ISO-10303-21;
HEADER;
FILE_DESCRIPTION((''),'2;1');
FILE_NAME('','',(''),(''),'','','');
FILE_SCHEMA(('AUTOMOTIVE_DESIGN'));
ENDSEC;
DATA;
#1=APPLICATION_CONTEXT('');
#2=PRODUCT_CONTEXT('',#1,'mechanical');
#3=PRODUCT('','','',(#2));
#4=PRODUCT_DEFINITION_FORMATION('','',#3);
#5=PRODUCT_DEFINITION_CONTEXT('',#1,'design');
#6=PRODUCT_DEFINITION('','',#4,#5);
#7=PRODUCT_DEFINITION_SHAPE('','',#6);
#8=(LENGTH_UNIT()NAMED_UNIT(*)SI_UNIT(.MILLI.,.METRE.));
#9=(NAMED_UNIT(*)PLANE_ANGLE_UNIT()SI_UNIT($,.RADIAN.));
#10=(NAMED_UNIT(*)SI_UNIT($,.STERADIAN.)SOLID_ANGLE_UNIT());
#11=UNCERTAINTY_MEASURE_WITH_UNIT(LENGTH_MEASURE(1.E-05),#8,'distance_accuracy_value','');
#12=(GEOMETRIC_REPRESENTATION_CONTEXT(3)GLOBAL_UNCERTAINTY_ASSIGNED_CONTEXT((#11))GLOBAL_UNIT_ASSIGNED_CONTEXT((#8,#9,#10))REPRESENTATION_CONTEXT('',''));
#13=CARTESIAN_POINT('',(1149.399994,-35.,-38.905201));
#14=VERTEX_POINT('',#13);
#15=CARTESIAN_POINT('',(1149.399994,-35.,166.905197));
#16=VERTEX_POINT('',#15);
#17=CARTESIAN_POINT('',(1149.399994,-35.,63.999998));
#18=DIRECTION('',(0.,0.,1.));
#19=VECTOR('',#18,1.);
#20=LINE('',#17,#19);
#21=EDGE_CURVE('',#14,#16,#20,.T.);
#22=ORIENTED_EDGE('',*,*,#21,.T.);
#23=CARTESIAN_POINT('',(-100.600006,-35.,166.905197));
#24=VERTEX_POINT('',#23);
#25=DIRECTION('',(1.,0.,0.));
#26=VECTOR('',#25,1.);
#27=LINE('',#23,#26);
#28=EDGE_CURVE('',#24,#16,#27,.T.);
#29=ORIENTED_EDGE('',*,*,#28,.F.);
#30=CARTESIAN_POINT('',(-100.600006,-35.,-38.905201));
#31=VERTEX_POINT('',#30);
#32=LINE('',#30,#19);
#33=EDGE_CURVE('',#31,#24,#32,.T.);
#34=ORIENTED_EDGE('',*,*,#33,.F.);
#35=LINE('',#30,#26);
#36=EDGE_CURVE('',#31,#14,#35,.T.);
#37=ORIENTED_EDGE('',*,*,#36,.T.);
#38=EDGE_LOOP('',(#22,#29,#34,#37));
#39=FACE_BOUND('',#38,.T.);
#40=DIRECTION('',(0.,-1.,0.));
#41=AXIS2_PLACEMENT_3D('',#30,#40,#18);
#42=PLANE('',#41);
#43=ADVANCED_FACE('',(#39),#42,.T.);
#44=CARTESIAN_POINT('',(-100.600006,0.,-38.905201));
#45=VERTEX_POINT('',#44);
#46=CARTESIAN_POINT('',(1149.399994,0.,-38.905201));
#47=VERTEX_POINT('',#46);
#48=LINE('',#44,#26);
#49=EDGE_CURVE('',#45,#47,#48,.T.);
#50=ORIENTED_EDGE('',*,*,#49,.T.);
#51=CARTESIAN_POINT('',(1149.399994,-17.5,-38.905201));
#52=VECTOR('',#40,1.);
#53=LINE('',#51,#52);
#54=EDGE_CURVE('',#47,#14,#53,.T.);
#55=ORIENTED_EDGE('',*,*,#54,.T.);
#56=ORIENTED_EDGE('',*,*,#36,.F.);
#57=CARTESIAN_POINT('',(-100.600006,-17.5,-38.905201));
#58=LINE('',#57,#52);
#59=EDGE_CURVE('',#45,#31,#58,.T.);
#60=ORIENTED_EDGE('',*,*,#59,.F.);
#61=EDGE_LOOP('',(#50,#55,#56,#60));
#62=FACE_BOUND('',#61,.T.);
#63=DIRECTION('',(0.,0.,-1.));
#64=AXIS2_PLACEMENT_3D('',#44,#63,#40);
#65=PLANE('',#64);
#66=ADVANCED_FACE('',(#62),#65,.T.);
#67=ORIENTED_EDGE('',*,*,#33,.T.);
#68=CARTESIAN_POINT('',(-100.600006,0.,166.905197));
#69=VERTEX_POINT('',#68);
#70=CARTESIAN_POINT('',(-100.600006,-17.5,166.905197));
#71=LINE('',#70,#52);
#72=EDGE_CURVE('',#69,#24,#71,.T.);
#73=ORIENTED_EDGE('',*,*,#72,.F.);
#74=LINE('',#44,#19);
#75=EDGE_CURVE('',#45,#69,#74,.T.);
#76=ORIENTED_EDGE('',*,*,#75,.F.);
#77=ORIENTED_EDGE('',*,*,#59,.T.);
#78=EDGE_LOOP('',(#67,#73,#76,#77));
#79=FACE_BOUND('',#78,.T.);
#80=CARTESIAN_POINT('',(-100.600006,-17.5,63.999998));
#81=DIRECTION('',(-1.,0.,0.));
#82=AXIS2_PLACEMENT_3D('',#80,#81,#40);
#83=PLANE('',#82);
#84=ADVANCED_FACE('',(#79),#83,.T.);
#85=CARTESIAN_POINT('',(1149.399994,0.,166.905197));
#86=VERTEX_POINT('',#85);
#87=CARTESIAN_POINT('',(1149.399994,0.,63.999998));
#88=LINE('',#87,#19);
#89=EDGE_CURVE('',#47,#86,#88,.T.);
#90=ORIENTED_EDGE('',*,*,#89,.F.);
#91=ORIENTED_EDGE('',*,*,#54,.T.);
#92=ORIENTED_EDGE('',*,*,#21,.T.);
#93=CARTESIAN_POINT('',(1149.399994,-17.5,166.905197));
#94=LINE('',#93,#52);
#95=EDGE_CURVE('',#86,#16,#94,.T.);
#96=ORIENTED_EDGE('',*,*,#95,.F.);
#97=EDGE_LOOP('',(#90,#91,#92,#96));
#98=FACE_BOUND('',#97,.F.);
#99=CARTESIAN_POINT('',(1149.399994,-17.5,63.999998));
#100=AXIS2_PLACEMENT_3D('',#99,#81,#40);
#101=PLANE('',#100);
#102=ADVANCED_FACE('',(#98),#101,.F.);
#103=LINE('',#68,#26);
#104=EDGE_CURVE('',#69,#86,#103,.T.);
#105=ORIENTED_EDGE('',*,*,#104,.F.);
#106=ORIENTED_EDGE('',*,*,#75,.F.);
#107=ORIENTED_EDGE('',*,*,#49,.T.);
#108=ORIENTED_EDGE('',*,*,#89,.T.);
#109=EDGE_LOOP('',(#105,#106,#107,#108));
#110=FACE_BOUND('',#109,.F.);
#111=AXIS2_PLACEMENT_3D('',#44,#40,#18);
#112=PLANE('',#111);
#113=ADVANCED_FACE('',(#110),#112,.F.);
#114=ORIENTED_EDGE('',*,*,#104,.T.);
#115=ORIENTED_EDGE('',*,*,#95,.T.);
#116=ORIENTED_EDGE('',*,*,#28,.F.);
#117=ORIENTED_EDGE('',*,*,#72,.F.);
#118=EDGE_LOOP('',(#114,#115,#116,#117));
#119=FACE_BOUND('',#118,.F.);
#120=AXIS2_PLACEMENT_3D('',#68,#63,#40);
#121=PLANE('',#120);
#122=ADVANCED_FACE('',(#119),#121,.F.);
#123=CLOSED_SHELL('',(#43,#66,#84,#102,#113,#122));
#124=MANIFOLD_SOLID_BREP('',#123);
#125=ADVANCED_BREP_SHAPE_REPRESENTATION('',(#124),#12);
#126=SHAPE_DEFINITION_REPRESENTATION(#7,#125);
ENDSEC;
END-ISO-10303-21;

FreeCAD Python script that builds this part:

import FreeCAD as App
import Part
import Sketcher

doc = App.newDocument("Part")
body = doc.addObject("PartDesign::Body", "Body")

sketch1 = body.newObject("Sketcher::SketchObject", "Sketch")
sketch1.AttachmentSupport = (doc.getObject("XZ_Plane"), [""])
sketch1.MapMode = "FlatFace"
sketch1.addGeometry([
    Part.LineSegment(App.Vector(-101, -33, 0), App.Vector(-101, -39, 0)),
    Part.LineSegment(App.Vector(-101, -39, 0), App.Vector(99, -39, 0)),
    Part.LineSegment(App.Vector(99, -39, 0), App.Vector(99, -33, 0)),
    Part.LineSegment(App.Vector(99, -33, 0), App.Vector(-101, -33, 0)),
], False)
sketch1.addConstraint([
    Sketcher.Constraint("Coincident", 0, 2, 1, 1),
    Sketcher.Constraint("Coincident", 1, 2, 2, 1),
    Sketcher.Constraint("Coincident", 2, 2, 3, 1),
    Sketcher.Constraint("Coincident", 3, 2, 0, 1),
    Sketcher.Constraint("Vertical", 0),
    Sketcher.Constraint("Horizontal", 1),
    Sketcher.Constraint("Vertical", 2),
    Sketcher.Constraint("Horizontal", 3),
    Sketcher.Constraint("DistanceX", 1, 1, 1, 2, 200.0),
    Sketcher.Constraint("DistanceY", 0, 2, -1, 1, 38.9052),
    Sketcher.Constraint("DistanceY", 0, 2, 0, 1, 5.810397),
    Sketcher.Constraint("DistanceX", 0, 2, -1, 1, 100.600006),
])
pad1 = body.newObject("PartDesign::Pad", "Pad")
pad1.Profile = sketch1
pad1.Length = 35

sketch2 = body.newObject("Sketcher::SketchObject", "Sketch001")
sketch2.AttachmentSupport = (doc.getObject("XY_Plane"), [""])
sketch2.MapMode = "FlatFace"
sketch2.AttachmentOffset = App.Placement(App.Vector(0, 0, -33.094804), App.Rotation())
sketch2.addGeometry([
    Part.LineSegment(App.Vector(-101, 0, 0), App.Vector(-101, -35, 0)),
    Part.LineSegment(App.Vector(-101, -35, 0), App.Vector(99, -35, 0)),
    Part.LineSegment(App.Vector(99, -35, 0), App.Vector(99, 0, 0)),
    Part.LineSegment(App.Vector(99, 0, 0), App.Vector(-101, 0, 0)),
], False)
sketch2.addConstraint([
    Sketcher.Constraint("Coincident", 0, 2, 1, 1),
    Sketcher.Constraint("Coincident", 1, 2, 2, 1),
    Sketcher.Constraint("Coincident", 2, 2, 3, 1),
    Sketcher.Constraint("Coincident", 3, 2, 0, 1),
    Sketcher.Constraint("Vertical", 0),
    Sketcher.Constraint("Horizontal", 1),
    Sketcher.Constraint("Vertical", 2),
    Sketcher.Constraint("Horizontal", 3),
    Sketcher.Constraint("PointOnObject", 2, 2, -1),
    Sketcher.Constraint("DistanceX", 1, 1, 1, 2, 200.0),
    Sketcher.Constraint("DistanceY", 0, 2, 0, 1, 35.0),
    Sketcher.Constraint("DistanceX", 0, 2, -1, 1, 100.600006),
])
pad2 = body.newObject("PartDesign::Pad", "Pad001")
pad2.Profile = sketch2
pad2.Length = 200

sketch3 = body.newObject("Sketcher::SketchObject", "Sketch002")
sketch3.AttachmentSupport = (doc.getObject("YZ_Plane"), [""])
sketch3.MapMode = "FlatFace"
sketch3.AttachmentOffset = App.Placement(App.Vector(0, 0, -100.600006), App.Rotation())
sketch3.addGeometry([
    Part.LineSegment(App.Vector(0, 167, 0), App.Vector(0, -39, 0)),
    Part.LineSegment(App.Vector(0, -39, 0), App.Vector(-35, -39, 0)),
    Part.LineSegment(App.Vector(-35, -39, 0), App.Vector(-35, 167, 0)),
    Part.LineSegment(App.Vector(-35, 167, 0), App.Vector(0, 167, 0)),
], False)
sketch3.addConstraint([
    Sketcher.Constraint("Coincident", 0, 2, 1, 1),
    Sketcher.Constraint("Coincident", 1, 2, 2, 1),
    Sketcher.Constraint("Coincident", 2, 2, 3, 1),
    Sketcher.Constraint("Coincident", 3, 2, 0, 1),
    Sketcher.Constraint("Vertical", 0),
    Sketcher.Constraint("Horizontal", 1),
    Sketcher.Constraint("Vertical", 2),
    Sketcher.Constraint("Horizontal", 3),
    Sketcher.Constraint("PointOnObject", 0, 2, -2),
    Sketcher.Constraint("DistanceX", 1, 2, 1, 1, 35.0),
    Sketcher.Constraint("DistanceY", 0, 2, 0, 1, 205.810398),
    Sketcher.Constraint("DistanceY", 0, 2, -1, 1, 38.905201),
])
pad3 = body.newObject("PartDesign::Pad", "Pad002")
pad3.Profile = sketch3
pad3.Length = 1250

doc.recompute()
